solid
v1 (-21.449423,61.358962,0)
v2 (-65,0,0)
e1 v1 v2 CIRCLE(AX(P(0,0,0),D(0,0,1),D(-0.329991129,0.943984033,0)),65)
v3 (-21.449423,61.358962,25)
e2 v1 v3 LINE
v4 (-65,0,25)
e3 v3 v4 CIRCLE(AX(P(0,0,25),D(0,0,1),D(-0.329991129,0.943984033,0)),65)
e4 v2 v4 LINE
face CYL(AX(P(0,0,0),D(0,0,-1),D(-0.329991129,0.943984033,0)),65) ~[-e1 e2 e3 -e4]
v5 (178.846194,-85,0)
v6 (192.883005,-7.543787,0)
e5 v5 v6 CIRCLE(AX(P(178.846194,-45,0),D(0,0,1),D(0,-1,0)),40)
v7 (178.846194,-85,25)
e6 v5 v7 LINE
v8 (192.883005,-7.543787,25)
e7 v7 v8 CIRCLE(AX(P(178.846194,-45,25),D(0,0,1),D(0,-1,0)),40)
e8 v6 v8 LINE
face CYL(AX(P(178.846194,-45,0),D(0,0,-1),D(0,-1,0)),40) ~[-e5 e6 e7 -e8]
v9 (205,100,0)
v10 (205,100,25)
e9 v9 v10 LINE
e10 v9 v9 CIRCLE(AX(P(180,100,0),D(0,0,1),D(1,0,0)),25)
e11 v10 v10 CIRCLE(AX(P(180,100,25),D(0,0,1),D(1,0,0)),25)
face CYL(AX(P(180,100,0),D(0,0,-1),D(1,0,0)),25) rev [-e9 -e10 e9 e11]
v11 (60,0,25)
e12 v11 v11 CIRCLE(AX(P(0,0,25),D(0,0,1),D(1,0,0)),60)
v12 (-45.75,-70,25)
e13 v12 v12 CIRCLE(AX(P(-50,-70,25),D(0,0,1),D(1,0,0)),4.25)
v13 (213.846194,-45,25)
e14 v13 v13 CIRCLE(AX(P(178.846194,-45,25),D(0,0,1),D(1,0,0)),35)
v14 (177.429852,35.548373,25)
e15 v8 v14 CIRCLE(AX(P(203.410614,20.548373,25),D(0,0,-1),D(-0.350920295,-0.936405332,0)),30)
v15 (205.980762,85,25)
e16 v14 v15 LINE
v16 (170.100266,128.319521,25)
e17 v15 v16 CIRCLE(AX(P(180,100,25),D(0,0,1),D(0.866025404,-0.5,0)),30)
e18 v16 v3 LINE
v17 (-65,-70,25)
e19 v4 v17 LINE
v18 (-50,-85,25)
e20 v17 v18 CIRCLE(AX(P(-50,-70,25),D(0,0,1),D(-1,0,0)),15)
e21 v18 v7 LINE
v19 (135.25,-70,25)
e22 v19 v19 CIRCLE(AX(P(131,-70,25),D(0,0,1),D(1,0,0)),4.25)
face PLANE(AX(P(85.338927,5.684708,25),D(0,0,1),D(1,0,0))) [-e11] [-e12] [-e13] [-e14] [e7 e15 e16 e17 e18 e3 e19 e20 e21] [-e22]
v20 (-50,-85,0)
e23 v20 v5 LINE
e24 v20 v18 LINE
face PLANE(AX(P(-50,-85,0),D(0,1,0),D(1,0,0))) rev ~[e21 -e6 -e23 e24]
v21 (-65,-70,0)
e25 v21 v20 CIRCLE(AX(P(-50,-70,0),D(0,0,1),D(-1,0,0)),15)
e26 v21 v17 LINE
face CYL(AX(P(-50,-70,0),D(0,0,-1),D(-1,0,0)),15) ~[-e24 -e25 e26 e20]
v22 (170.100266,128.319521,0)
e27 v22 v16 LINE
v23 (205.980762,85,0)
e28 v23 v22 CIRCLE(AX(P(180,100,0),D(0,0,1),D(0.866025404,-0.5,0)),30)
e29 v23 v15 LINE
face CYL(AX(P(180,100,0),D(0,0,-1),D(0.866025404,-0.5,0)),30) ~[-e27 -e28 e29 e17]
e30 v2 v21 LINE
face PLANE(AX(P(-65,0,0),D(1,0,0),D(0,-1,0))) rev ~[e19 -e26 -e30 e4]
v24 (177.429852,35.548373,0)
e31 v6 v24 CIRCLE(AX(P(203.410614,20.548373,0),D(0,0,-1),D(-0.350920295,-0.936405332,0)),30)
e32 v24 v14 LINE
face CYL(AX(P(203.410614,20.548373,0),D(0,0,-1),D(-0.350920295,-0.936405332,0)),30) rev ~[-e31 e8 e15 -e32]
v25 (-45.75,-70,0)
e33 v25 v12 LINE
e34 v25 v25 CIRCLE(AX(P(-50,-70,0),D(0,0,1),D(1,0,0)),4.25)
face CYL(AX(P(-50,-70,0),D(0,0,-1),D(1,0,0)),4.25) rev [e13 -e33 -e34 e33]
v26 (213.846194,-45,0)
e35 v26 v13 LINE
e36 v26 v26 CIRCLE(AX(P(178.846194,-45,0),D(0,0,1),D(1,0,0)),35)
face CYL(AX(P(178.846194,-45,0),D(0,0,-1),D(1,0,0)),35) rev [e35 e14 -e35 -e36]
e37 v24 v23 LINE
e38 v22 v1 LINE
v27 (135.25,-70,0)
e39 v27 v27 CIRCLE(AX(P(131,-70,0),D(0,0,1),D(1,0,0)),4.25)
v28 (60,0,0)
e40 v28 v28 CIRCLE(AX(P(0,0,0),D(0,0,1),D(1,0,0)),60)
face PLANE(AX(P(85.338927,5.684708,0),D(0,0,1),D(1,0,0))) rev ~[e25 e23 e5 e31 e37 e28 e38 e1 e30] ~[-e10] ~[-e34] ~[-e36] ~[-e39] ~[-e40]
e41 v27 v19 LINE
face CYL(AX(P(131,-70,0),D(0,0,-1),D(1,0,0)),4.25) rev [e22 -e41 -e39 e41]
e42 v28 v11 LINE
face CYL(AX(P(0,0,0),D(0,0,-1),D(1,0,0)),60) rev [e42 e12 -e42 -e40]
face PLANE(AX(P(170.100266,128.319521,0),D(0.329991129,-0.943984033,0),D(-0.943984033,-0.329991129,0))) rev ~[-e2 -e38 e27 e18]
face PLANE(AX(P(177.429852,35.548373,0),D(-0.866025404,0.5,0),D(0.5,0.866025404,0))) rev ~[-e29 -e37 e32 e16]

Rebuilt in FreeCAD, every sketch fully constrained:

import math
import FreeCAD as App
import Part
import Sketcher
from FreeCAD import Vector
Q = App.Units.Quantity

doc = App.newDocument("Part")
body = doc.addObject("PartDesign::Body", "Body")

# Sketch on XY plane
sketch1 = doc.addObject("Sketcher::SketchObject", "Sketch")
body.addObject(sketch1)
sketch1.AttachmentSupport = (doc.XY_Plane, [""])
sketch1.MapMode = "FlatFace"
sketch1.addGeometry(Part.LineSegment(Vector(170.1, 128.3, 0), Vector(-21.4, 61.4, 0)), False)
sketch1.addGeometry(Part.ArcOfCircle(Part.Circle(Vector(0, 0, 0), Vector(0, 0, 1), 65), math.radians(109), math.radians(180)), False)
sketch1.addGeometry(Part.LineSegment(Vector(-65, 0, 0), Vector(-65, -70, 0)), False)
sketch1.addGeometry(Part.ArcOfCircle(Part.Circle(Vector(-50, -70, 0), Vector(0, 0, 1), 15), math.radians(180), math.radians(270)), False)
sketch1.addGeometry(Part.LineSegment(Vector(-50, -85, 0), Vector(178.8, -85, 0)), False)
sketch1.addGeometry(Part.ArcOfCircle(Part.Circle(Vector(178.8, -45, 0), Vector(0, 0, 1), 40), math.radians(-90), math.radians(69)), False)
sketch1.addGeometry(Part.ArcOfCircle(Part.Circle(Vector(203.4, 20.5, 0), Vector(0, 0, 1), 30), math.radians(150), math.radians(249)), False)
sketch1.addGeometry(Part.LineSegment(Vector(177.4, 35.5, 0), Vector(206, 85, 0)), False)
sketch1.addGeometry(Part.ArcOfCircle(Part.Circle(Vector(180, 100, 0), Vector(0, 0, 1), 30), math.radians(-30), math.radians(109)), False)
sketch1.addGeometry(Part.Circle(Vector(-50, -70, 0), Vector(0, 0, 1), 4.2), False)
sketch1.addGeometry(Part.Circle(Vector(0, 0, 0), Vector(0, 0, 1), 60), False)
sketch1.addGeometry(Part.Circle(Vector(131, -70, 0), Vector(0, 0, 1), 4.2), False)
sketch1.addGeometry(Part.Circle(Vector(178.8, -45, 0), Vector(0, 0, 1), 35), False)
sketch1.addGeometry(Part.Circle(Vector(180, 100, 0), Vector(0, 0, 1), 25), False)
sketch1.addConstraint(Sketcher.Constraint("Tangent", 0, 2, 1, 1))
sketch1.addConstraint(Sketcher.Constraint("Tangent", 1, 2, 2, 1))
sketch1.addConstraint(Sketcher.Constraint("Tangent", 2, 2, 3, 1))
sketch1.addConstraint(Sketcher.Constraint("Tangent", 3, 2, 4, 1))
sketch1.addConstraint(Sketcher.Constraint("Tangent", 4, 2, 5, 1))
sketch1.addConstraint(Sketcher.Constraint("Tangent", 5, 2, 6, 2))
sketch1.addConstraint(Sketcher.Constraint("Tangent", 6, 1, 7, 1))
sketch1.addConstraint(Sketcher.Constraint("Tangent", 7, 2, 8, 1))
sketch1.addConstraint(Sketcher.Constraint("Tangent", 8, 2, 0, 1))
sketch1.addConstraint(Sketcher.Constraint("Vertical", 2))
sketch1.addConstraint(Sketcher.Constraint("Horizontal", 4))
sketch1.addConstraint(Sketcher.Constraint("Coincident", 1, 3, -1, 1))
sketch1.addConstraint(Sketcher.Constraint("Coincident", 10, 3, -1, 1))
sketch1.addConstraint(Sketcher.Constraint("Coincident", 9, 3, 3, 3))
sketch1.addConstraint(Sketcher.Constraint("Coincident", 12, 3, 5, 3))
sketch1.addConstraint(Sketcher.Constraint("Coincident", 13, 3, 8, 3))
sketch1.addConstraint(Sketcher.Constraint("Equal", 6, 8))
sketch1.addConstraint(Sketcher.Constraint("Equal", 9, 11))
sketch1.addConstraint(Sketcher.Constraint("Horizontal", 9, 3, 11, 3))
sketch1.addConstraint(Sketcher.Constraint("Diameter", 10, 120.0))
sketch1.addConstraint(Sketcher.Constraint("Diameter", 12, 70.0))
sketch1.addConstraint(Sketcher.Constraint("Diameter", 13, 50.0))
sketch1.addConstraint(Sketcher.Constraint("Radius", 1, 65.0))
sketch1.addConstraint(Sketcher.Constraint("Radius", 3, 15.0))
sketch1.addConstraint(Sketcher.Constraint("Radius", 5, 40.0))
sketch1.addConstraint(Sketcher.Constraint("Radius", 6, 30.0))
sketch1.addConstraint(Sketcher.Constraint("Diameter", 9, 8.5))
sketch1.addConstraint(Sketcher.Constraint("DistanceY", 2, 2, 2, 1, 70.0))
sketch1.addConstraint(Sketcher.Constraint("Angle", 7, Q("60 deg")))
sketch1.addConstraint(Sketcher.Constraint("DistanceX", -1, 1, 8, 3, 180.0))
sketch1.addConstraint(Sketcher.Constraint("DistanceY", -1, 1, 8, 3, 100.0))
sketch1.addConstraint(Sketcher.Constraint("DistanceX", -1, 1, 11, 3, 131.0))
sketch1.addConstraint(Sketcher.Constraint("Distance", 7, 57.10182))
pad1 = doc.addObject("PartDesign::Pad", "Pad")
body.addObject(pad1)
pad1.Profile = sketch1
pad1.Length = 25

doc.recompute()
